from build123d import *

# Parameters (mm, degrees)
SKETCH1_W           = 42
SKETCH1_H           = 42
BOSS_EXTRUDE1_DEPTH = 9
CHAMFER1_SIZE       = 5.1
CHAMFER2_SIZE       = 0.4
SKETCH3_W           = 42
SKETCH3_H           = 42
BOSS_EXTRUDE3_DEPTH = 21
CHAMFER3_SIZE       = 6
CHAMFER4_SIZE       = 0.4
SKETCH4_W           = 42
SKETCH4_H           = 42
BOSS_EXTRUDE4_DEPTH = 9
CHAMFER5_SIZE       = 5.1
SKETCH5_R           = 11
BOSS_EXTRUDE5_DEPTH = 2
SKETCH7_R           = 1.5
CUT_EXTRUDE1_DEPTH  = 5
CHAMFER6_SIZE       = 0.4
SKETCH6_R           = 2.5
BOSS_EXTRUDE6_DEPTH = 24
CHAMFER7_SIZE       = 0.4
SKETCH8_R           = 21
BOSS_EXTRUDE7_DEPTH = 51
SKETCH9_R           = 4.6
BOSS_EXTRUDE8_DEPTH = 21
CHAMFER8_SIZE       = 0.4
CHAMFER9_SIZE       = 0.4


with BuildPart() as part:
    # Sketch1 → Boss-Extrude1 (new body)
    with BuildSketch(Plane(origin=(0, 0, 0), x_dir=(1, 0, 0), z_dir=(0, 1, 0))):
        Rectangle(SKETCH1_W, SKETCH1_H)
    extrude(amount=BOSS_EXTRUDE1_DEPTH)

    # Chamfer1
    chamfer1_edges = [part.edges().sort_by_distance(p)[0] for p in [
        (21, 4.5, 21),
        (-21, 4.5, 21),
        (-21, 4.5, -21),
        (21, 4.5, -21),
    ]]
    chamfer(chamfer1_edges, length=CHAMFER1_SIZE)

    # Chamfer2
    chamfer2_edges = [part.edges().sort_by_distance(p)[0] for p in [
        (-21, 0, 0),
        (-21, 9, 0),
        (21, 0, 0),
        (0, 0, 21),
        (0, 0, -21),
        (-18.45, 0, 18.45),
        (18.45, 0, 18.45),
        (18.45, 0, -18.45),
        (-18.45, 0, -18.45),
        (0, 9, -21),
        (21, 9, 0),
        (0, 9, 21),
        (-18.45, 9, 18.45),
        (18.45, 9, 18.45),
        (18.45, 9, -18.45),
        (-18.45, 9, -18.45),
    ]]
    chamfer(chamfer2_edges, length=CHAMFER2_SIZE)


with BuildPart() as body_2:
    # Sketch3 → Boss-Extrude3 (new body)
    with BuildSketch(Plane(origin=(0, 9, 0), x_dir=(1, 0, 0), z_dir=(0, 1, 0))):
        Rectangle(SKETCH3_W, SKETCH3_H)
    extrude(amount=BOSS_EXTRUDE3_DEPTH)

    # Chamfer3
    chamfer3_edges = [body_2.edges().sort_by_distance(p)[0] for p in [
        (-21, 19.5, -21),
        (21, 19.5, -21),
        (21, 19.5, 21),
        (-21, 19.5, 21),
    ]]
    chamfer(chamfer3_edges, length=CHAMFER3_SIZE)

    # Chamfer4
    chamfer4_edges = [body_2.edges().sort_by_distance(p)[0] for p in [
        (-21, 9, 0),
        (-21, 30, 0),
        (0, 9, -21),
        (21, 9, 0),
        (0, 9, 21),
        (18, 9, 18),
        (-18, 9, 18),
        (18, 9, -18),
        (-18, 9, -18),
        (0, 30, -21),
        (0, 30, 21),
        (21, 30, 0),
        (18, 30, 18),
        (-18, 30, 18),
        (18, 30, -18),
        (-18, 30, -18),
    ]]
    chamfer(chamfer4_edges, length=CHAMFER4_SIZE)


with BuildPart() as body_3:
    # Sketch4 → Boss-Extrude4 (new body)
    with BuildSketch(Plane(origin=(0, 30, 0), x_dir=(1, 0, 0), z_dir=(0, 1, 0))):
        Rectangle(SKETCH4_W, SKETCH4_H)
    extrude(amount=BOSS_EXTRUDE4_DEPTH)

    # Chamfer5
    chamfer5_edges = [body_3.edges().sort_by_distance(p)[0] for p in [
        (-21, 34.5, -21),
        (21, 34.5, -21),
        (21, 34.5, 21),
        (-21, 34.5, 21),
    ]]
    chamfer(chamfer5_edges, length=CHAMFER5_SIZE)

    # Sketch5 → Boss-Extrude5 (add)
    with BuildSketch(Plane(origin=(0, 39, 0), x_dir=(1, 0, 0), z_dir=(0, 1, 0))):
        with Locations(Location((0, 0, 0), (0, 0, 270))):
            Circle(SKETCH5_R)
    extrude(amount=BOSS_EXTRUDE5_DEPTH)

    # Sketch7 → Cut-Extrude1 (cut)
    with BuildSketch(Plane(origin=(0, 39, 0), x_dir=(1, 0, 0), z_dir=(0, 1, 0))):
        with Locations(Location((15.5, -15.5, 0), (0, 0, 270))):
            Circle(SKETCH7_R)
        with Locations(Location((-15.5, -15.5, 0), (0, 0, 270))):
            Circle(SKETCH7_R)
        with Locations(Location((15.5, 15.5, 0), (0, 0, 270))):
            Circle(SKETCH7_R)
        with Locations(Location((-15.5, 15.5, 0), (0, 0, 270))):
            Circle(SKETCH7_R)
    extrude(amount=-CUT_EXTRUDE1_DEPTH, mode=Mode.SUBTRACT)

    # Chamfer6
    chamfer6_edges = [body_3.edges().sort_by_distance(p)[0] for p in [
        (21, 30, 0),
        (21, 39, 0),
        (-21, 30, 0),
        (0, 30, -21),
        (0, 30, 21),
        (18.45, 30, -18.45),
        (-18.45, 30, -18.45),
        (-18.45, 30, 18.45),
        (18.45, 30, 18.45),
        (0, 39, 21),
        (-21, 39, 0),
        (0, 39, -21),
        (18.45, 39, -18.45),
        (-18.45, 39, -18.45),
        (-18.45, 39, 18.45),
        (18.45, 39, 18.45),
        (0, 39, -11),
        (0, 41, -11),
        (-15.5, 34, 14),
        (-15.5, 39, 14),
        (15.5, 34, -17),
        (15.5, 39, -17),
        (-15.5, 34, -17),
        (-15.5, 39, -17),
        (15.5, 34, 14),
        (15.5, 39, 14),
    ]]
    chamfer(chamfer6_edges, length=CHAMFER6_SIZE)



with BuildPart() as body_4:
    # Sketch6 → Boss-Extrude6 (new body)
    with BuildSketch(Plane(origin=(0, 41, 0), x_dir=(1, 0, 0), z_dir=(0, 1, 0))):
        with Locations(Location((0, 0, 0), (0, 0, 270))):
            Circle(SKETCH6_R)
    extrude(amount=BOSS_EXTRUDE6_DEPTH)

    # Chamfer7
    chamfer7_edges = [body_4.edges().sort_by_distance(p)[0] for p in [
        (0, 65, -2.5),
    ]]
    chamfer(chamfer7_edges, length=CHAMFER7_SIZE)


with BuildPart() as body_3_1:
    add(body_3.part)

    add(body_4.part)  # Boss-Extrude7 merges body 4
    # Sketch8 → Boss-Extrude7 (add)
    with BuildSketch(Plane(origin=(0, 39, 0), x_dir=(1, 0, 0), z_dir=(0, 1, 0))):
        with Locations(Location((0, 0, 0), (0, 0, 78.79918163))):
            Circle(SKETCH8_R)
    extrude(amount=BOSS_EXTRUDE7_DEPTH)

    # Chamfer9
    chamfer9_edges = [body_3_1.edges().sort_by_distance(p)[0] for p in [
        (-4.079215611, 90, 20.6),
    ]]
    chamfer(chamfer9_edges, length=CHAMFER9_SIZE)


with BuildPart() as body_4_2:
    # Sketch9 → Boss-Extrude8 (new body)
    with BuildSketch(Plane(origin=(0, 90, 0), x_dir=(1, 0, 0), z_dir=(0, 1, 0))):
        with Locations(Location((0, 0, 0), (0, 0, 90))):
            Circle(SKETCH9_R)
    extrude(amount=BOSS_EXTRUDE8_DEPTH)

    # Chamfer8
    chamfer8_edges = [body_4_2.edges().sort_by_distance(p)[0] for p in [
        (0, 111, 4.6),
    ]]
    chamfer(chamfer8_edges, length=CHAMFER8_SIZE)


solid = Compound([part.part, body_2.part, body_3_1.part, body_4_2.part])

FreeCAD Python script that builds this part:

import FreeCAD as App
import Part
import Sketcher
from FreeCAD import Vector
Q = App.Units.Quantity


def edges_at(feature, points):
    """Names of the edges that pass closest to the given points."""
    edges = feature.Shape.Edges
    near = lambda p: min(range(len(edges)), key=lambda i: edges[i].distToShape(Part.Vertex(*p))[0])
    return sorted({f"Edge{near(p) + 1}" for p in points})

doc = App.newDocument("Part")
body = doc.addObject("PartDesign::Body", "Body")

# Sketch on XZ plane
sketch1 = body.newObject("Sketcher::SketchObject", "Sketch")
sketch1.AttachmentSupport = (doc.getObject("XZ_Plane"), [""])
sketch1.MapMode = "FlatFace"
sketch1.addGeometry([
    Part.LineSegment(Vector(-21, -21, 0), Vector(-21, 21, 0)),
    Part.LineSegment(Vector(-21, 21, 0), Vector(21, 21, 0)),
    Part.LineSegment(Vector(21, 21, 0), Vector(21, -21, 0)),
    Part.LineSegment(Vector(21, -21, 0), Vector(-21, -21, 0)),
], False)
sketch1.addConstraint([
    Sketcher.Constraint("Coincident", 0, 2, 1, 1),
    Sketcher.Constraint("Coincident", 1, 2, 2, 1),
    Sketcher.Constraint("Coincident", 2, 2, 3, 1),
    Sketcher.Constraint("Coincident", 3, 2, 0, 1),
    Sketcher.Constraint("Vertical", 0),
    Sketcher.Constraint("Horizontal", 1),
    Sketcher.Constraint("Vertical", 2),
    Sketcher.Constraint("Horizontal", 3),
    Sketcher.Constraint("Symmetric", 0, 2, 2, 2, -1, 1),
    Sketcher.Constraint("Equal", 3, 0),
    Sketcher.Constraint("DistanceX", 1, 1, 1, 2, Q("42 mm")),
])
pad1 = body.newObject("PartDesign::Pad", "Pad")
pad1.Profile = sketch1
pad1.Length = 9
pad1.Reversed = True
doc.recompute()

chamfer = body.newObject("PartDesign::Chamfer", "Chamfer")
chamfer.Base = (pad1, edges_at(pad1, [
    (21, 4.5, 21),
    (-21, 4.5, 21),
    (-21, 4.5, -21),
    (21, 4.5, -21),
]))
chamfer.Size = 5.1
doc.recompute()

chamfer2 = body.newObject("PartDesign::Chamfer", "Chamfer001")
chamfer2.Base = (chamfer, edges_at(chamfer, [
    (-21, 0, 0),
    (-21, 9, 0),
    (21, 0, 0),
    (0, 0, 21),
    (0, 0, -21),
    (-18.45, 0, 18.45),
    (18.45, 0, 18.45),
    (18.45, 0, -18.45),
    (-18.45, 0, -18.45),
    (0, 9, -21),
    (21, 9, 0),
    (0, 9, 21),
    (-18.45, 9, 18.45),
    (18.45, 9, 18.45),
    (18.45, 9, -18.45),
    (-18.45, 9, -18.45),
]))
chamfer2.Size = 0.4
body2 = doc.addObject("PartDesign::Body", "Body001")

# Sketch on XZ plane
sketch2 = body2.newObject("Sketcher::SketchObject", "Sketch001")
sketch2.AttachmentSupport = (doc.getObject("XZ_Plane001"), [""])
sketch2.MapMode = "FlatFace"
sketch2.AttachmentOffset = App.Placement(Vector(0, 0, -9), App.Rotation())
sketch2.addGeometry([
    Part.LineSegment(Vector(-21, -21, 0), Vector(-21, 21, 0)),
    Part.LineSegment(Vector(-21, 21, 0), Vector(21, 21, 0)),
    Part.LineSegment(Vector(21, 21, 0), Vector(21, -21, 0)),
    Part.LineSegment(Vector(21, -21, 0), Vector(-21, -21, 0)),
], False)
sketch2.addConstraint([
    Sketcher.Constraint("Coincident", 0, 2, 1, 1),
    Sketcher.Constraint("Coincident", 1, 2, 2, 1),
    Sketcher.Constraint("Coincident", 2, 2, 3, 1),
    Sketcher.Constraint("Coincident", 3, 2, 0, 1),
    Sketcher.Constraint("Vertical", 0),
    Sketcher.Constraint("Horizontal", 1),
    Sketcher.Constraint("Vertical", 2),
    Sketcher.Constraint("Horizontal", 3),
    Sketcher.Constraint("Symmetric", 0, 2, 2, 2, -1, 1),
    Sketcher.Constraint("Equal", 3, 0),
    Sketcher.Constraint("DistanceX", 1, 1, 1, 2, Q("42 mm")),
])
pad2 = body2.newObject("PartDesign::Pad", "Pad001")
pad2.Profile = sketch2
pad2.Length = 21
pad2.Reversed = True
doc.recompute()

chamfer3 = body2.newObject("PartDesign::Chamfer", "Chamfer002")
chamfer3.Base = (pad2, edges_at(pad2, [
    (-21, 19.5, -21),
    (21, 19.5, -21),
    (21, 19.5, 21),
    (-21, 19.5, 21),
]))
chamfer3.Size = 6
doc.recompute()

chamfer4 = body2.newObject("PartDesign::Chamfer", "Chamfer003")
chamfer4.Base = (chamfer3, edges_at(chamfer3, [
    (-21, 9, 0),
    (-21, 30, 0),
    (0, 9, -21),
    (21, 9, 0),
    (0, 9, 21),
    (18, 9, 18),
    (-18, 9, 18),
    (18, 9, -18),
    (-18, 9, -18),
    (0, 30, -21),
    (0, 30, 21),
    (21, 30, 0),
    (18, 30, 18),
    (-18, 30, 18),
    (18, 30, -18),
    (-18, 30, -18),
]))
chamfer4.Size = 0.4
body3 = doc.addObject("PartDesign::Body", "Body002")

# Sketch on XZ plane
sketch3 = body3.newObject("Sketcher::SketchObject", "Sketch002")
sketch3.AttachmentSupport = (doc.getObject("XZ_Plane002"), [""])
sketch3.MapMode = "FlatFace"
sketch3.AttachmentOffset = App.Placement(Vector(0, 0, -30), App.Rotation())
sketch3.addGeometry([
    Part.LineSegment(Vector(-21, -21, 0), Vector(-21, 21, 0)),
    Part.LineSegment(Vector(-21, 21, 0), Vector(21, 21, 0)),
    Part.LineSegment(Vector(21, 21, 0), Vector(21, -21, 0)),
    Part.LineSegment(Vector(21, -21, 0), Vector(-21, -21, 0)),
], False)
sketch3.addConstraint([
    Sketcher.Constraint("Coincident", 0, 2, 1, 1),
    Sketcher.Constraint("Coincident", 1, 2, 2, 1),
    Sketcher.Constraint("Coincident", 2, 2, 3, 1),
    Sketcher.Constraint("Coincident", 3, 2, 0, 1),
    Sketcher.Constraint("Vertical", 0),
    Sketcher.Constraint("Horizontal", 1),
    Sketcher.Constraint("Vertical", 2),
    Sketcher.Constraint("Horizontal", 3),
    Sketcher.Constraint("Symmetric", 0, 2, 2, 2, -1, 1),
    Sketcher.Constraint("Equal", 3, 0),
    Sketcher.Constraint("DistanceX", 1, 1, 1, 2, Q("42 mm")),
])
pad3 = body3.newObject("PartDesign::Pad", "Pad002")
pad3.Profile = sketch3
pad3.Length = 9
pad3.Reversed = True
doc.recompute()

chamfer5 = body3.newObject("PartDesign::Chamfer", "Chamfer004")
chamfer5.Base = (pad3, edges_at(pad3, [
    (-21, 34.5, -21),
    (21, 34.5, -21),
    (21, 34.5, 21),
    (-21, 34.5, 21),
]))
chamfer5.Size = 5.1

# Sketch on XZ plane
sketch4 = body3.newObject("Sketcher::SketchObject", "Sketch003")
sketch4.AttachmentSupport = (doc.getObject("XZ_Plane002"), [""])
sketch4.MapMode = "FlatFace"
sketch4.AttachmentOffset = App.Placement(Vector(0, 0, -39), App.Rotation())
sketch4.addGeometry(Part.Circle(Vector(0, 0, 0), Vector(0, 0, 1), 11), False)
sketch4.addConstraint([
    Sketcher.Constraint("Coincident", 0, 3, -1, 1),
    Sketcher.Constraint("Diameter", 0, Q("22 mm")),
])
pad4 = body3.newObject("PartDesign::Pad", "Pad003")
pad4.Profile = sketch4
pad4.Length = 2
pad4.Reversed = True

# Sketch on XZ plane
sketch5 = body3.newObject("Sketcher::SketchObject", "Sketch004")
sketch5.AttachmentSupport = (doc.getObject("XZ_Plane002"), [""])
sketch5.MapMode = "FlatFace"
sketch5.AttachmentOffset = App.Placement(Vector(0, 0, -39), App.Rotation())
sketch5.addGeometry([
    Part.Circle(Vector(15.5, 15.5, 0), Vector(0, 0, 1), 1.5),
    Part.Circle(Vector(-15.5, 15.5, 0), Vector(0, 0, 1), 1.5),
    Part.Circle(Vector(15.5, -15.5, 0), Vector(0, 0, 1), 1.5),
    Part.Circle(Vector(-15.5, -15.5, 0), Vector(0, 0, 1), 1.5),
], False)
sketch5.addConstraint([
    Sketcher.Constraint("Equal", 0, 1),
    Sketcher.Constraint("Equal", 1, 2),
    Sketcher.Constraint("Equal", 2, 3),
    Sketcher.Constraint("Symmetric", 1, 3, 2, 3, -1, 1),
    Sketcher.Constraint("Symmetric", 0, 3, 3, 3, -1, 1),
    Sketcher.Constraint("Symmetric", 0, 3, 1, 3, -2),
    Sketcher.Constraint("Diameter", 0, Q("3 mm")),
    Sketcher.Constraint("DistanceX", 1, 3, 0, 3, Q("31 mm")),
    Sketcher.Constraint("DistanceY", 2, 3, 0, 3, Q("31 mm")),
])
pocket1 = body3.newObject("PartDesign::Pocket", "Pocket")
pocket1.Profile = sketch5
pocket1.Length = 5
pocket1.Reversed = True
doc.recompute()

chamfer6 = body3.newObject("PartDesign::Chamfer", "Chamfer005")
chamfer6.Base = (pocket1, edges_at(pocket1, [
    (21, 30, 0),
    (21, 39, 0),
    (-21, 30, 0),
    (0, 30, -21),
    (0, 30, 21),
    (18.45, 30, -18.45),
    (-18.45, 30, -18.45),
    (-18.45, 30, 18.45),
    (18.45, 30, 18.45),
    (0, 39, 21),
    (-21, 39, 0),
    (0, 39, -21),
    (18.45, 39, -18.45),
    (-18.45, 39, -18.45),
    (-18.45, 39, 18.45),
    (18.45, 39, 18.45),
    (0, 39, -11),
    (0, 41, -11),
    (-15.5, 34, 14),
    (-15.5, 39, 14),
    (15.5, 34, -17),
    (15.5, 39, -17),
    (-15.5, 34, -17),
    (-15.5, 39, -17),
    (15.5, 34, 14),
    (15.5, 39, 14),
]))
chamfer6.Size = 0.4
body4 = doc.addObject("PartDesign::Body", "Body003")

# Sketch on XZ plane
sketch6 = body4.newObject("Sketcher::SketchObject", "Sketch005")
sketch6.AttachmentSupport = (doc.getObject("XZ_Plane003"), [""])
sketch6.MapMode = "FlatFace"
sketch6.AttachmentOffset = App.Placement(Vector(0, 0, -41), App.Rotation())
sketch6.addGeometry(Part.Circle(Vector(0, 0, 0), Vector(0, 0, 1), 2.5), False)
sketch6.addConstraint([
    Sketcher.Constraint("Coincident", 0, 3, -1, 1),
    Sketcher.Constraint("Diameter", 0, Q("5 mm")),
])
pad5 = body4.newObject("PartDesign::Pad", "Pad004")
pad5.Profile = sketch6
pad5.Length = 24
pad5.Reversed = True
doc.recompute()

chamfer7 = body4.newObject("PartDesign::Chamfer", "Chamfer006")
chamfer7.Base = (pad5, edges_at(pad5, [(0, 65, -2.5)]))
chamfer7.Size = 0.4
doc.recompute()

boolean = body3.newObject("PartDesign::Boolean", "Boolean")
boolean.Type = "Fuse"
boolean.addObjects([body4])

# Sketch on XZ plane
sketch7 = body3.newObject("Sketcher::SketchObject", "Sketch006")
sketch7.AttachmentSupport = (doc.getObject("XZ_Plane002"), [""])
sketch7.MapMode = "FlatFace"
sketch7.AttachmentOffset = App.Placement(Vector(0, 0, -39), App.Rotation())
sketch7.addGeometry(Part.Circle(Vector(0, 0, 0), Vector(0, 0, 1), 21), False)
sketch7.addConstraint([
    Sketcher.Constraint("Coincident", 0, 3, -1, 1),
    Sketcher.Constraint("Diameter", 0, Q("42 mm")),
])
pad6 = body3.newObject("PartDesign::Pad", "Pad005")
pad6.Profile = sketch7
pad6.Length = 51
pad6.Reversed = True
doc.recompute()

chamfer8 = body3.newObject("PartDesign::Chamfer", "Chamfer007")
chamfer8.Base = (pad6, edges_at(pad6, [(-4.079, 90, 20.6)]))
chamfer8.Size = 0.4
body5 = doc.addObject("PartDesign::Body", "Body004")

# Sketch on XZ plane
sketch8 = body5.newObject("Sketcher::SketchObject", "Sketch007")
sketch8.AttachmentSupport = (doc.getObject("XZ_Plane004"), [""])
sketch8.MapMode = "FlatFace"
sketch8.AttachmentOffset = App.Placement(Vector(0, 0, -90), App.Rotation())
sketch8.addGeometry(Part.Circle(Vector(0, 0, 0), Vector(0, 0, 1), 4.6), False)
sketch8.addConstraint([
    Sketcher.Constraint("Coincident", 0, 3, -1, 1),
    Sketcher.Constraint("Diameter", 0, Q("9.2 mm")),
])
pad7 = body5.newObject("PartDesign::Pad", "Pad006")
pad7.Profile = sketch8
pad7.Length = 21
pad7.Reversed = True
doc.recompute()

chamfer9 = body5.newObject("PartDesign::Chamfer", "Chamfer008")
chamfer9.Base = (pad7, edges_at(pad7, [(0, 111, 4.6)]))
chamfer9.Size = 0.4

doc.recompute()
